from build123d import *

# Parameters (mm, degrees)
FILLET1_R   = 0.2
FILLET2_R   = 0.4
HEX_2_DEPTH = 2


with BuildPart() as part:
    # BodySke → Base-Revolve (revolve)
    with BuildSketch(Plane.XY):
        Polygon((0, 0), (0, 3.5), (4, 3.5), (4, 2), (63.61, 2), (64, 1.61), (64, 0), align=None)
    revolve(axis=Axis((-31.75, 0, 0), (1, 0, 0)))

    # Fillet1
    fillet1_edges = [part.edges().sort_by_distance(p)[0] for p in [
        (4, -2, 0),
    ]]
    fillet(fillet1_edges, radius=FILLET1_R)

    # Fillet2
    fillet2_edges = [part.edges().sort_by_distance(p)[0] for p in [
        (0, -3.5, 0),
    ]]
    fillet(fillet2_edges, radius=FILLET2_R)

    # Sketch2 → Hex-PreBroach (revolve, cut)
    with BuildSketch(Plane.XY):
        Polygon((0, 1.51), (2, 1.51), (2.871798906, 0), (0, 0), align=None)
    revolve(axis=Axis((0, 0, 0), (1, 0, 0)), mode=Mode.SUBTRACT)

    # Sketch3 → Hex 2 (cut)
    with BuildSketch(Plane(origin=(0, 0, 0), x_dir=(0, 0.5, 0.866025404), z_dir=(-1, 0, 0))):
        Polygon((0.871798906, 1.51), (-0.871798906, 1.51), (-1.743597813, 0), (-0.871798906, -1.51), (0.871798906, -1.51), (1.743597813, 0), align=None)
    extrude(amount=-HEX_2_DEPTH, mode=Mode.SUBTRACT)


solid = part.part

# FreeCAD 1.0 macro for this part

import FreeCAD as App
import Part
import Sketcher

V = App.Vector
Q = App.Units.Quantity


def edges_at(feature, points):
    """Names of the edges that pass closest to the given points."""
    edges = feature.Shape.Edges
    near = lambda p: min(range(len(edges)), key=lambda i: edges[i].distToShape(Part.Vertex(*p))[0])
    return sorted({f"Edge{near(p) + 1}" for p in points})


def add_polygon(sketch, points):
    """Adds a closed chain of lines whose ends are joined by coincident constraints."""
    first, n = sketch.GeometryCount, len(points)
    for a, b in zip(points, points[1:] + points[:1]):
        sketch.addGeometry(Part.LineSegment(App.Vector(*a, 0), App.Vector(*b, 0)), False)
    for i in range(n):
        sketch.addConstraint(Sketcher.Constraint("Coincident", first + i, 2, first + (i + 1) % n, 1))

doc = App.newDocument("Part")
body = doc.addObject("PartDesign::Body", "Body")

sketch1 = body.newObject("Sketcher::SketchObject", "Sketch")
sketch1.AttachmentSupport = (doc.getObject("XY_Plane"), [""])
sketch1.MapMode = "FlatFace"
add_polygon(sketch1, [(0, 3.5), (0, 0), (64, 0), (64, 1.61), (63.61, 2), (4, 2), (4, 3.5)])
sketch1.addConstraint(Sketcher.Constraint("Vertical", 0))
sketch1.addConstraint(Sketcher.Constraint("Horizontal", 1))
sketch1.addConstraint(Sketcher.Constraint("Vertical", 2))
sketch1.addConstraint(Sketcher.Constraint("Horizontal", 4))
sketch1.addConstraint(Sketcher.Constraint("Vertical", 5))
sketch1.addConstraint(Sketcher.Constraint("Horizontal", 6))
sketch1.addConstraint(Sketcher.Constraint("Coincident", 0, 2, -1, 1))
sketch1.addConstraint(Sketcher.Constraint("DistanceX", 1, 1, 1, 2, Q("64 mm")))
sketch1.addConstraint(Sketcher.Constraint("DistanceX", 6, 2, 6, 1, Q("4 mm")))
sketch1.addConstraint(Sketcher.Constraint("Angle", 3, Q("135 deg")))
sketch1.addConstraint(Sketcher.Constraint("DistanceY", 0, 2, 0, 1, Q("3.5 mm")))
sketch1.addConstraint(Sketcher.Constraint("DistanceY", 5, 1, 5, 2, Q("1.5 mm")))
sketch1.addConstraint(Sketcher.Constraint("DistanceX", 4, 2, 4, 1, Q("59.61 mm")))
revolution = body.newObject("PartDesign::Revolution", "Revolution")
revolution.Profile = sketch1
revolution.ReferenceAxis = (sketch1, ["H_Axis"])
revolution.Angle = 360
doc.recompute()

fillet = body.newObject("PartDesign::Fillet", "Fillet")
fillet.Base = (revolution, edges_at(revolution, [(4, -2, 0)]))
fillet.Radius = 0.2
doc.recompute()

fillet2 = body.newObject("PartDesign::Fillet", "Fillet001")
fillet2.Base = (fillet, edges_at(fillet, [(0, -3.5, 0)]))
fillet2.Radius = 0.4

sketch2 = body.newObject("Sketcher::SketchObject", "Sketch001")
sketch2.AttachmentSupport = (doc.getObject("XY_Plane"), [""])
sketch2.MapMode = "FlatFace"
add_polygon(sketch2, [(2, 1.51), (0, 1.51), (0, 0), (2.871799, 0)])
sketch2.addConstraint(Sketcher.Constraint("Horizontal", 0))
sketch2.addConstraint(Sketcher.Constraint("Vertical", 1))
sketch2.addConstraint(Sketcher.Constraint("Horizontal", 2))
sketch2.addConstraint(Sketcher.Constraint("Coincident", 1, 2, -1, 1))
sketch2.addConstraint(Sketcher.Constraint("DistanceX", 0, 2, 0, 1, Q("2 mm")))
sketch2.addConstraint(Sketcher.Constraint("Angle", 3, Q("120 deg")))
sketch2.addConstraint(Sketcher.Constraint("DistanceY", 1, 2, 1, 1, Q("1.51 mm")))
groove = body.newObject("PartDesign::Groove", "Groove")
groove.Profile = sketch2
groove.ReferenceAxis = (sketch2, ["H_Axis"])
groove.Angle = 360

sketch3 = body.newObject("Sketcher::SketchObject", "Sketch002")
sketch3.AttachmentSupport = (doc.getObject("YZ_Plane"), [""])
sketch3.MapMode = "FlatFace"
add_polygon(sketch3, [(1.743598, 0), (0.871799, -1.51), (-0.871799, -1.51), (-1.743598, 0), (-0.871799, 1.51), (0.871799, 1.51)])
sketch3.addConstraint(Sketcher.Constraint("Horizontal", 1))
sketch3.addConstraint(Sketcher.Constraint("Horizontal", 4))
sketch3.addConstraint(Sketcher.Constraint("Symmetric", 0, 2, 3, 2, -1, 1))
sketch3.addConstraint(Sketcher.Constraint("Symmetric", 2, 2, 5, 2, -1, 1))
sketch3.addConstraint(Sketcher.Constraint("PointOnObject", 2, 2, -1))
sketch3.addConstraint(Sketcher.Constraint("Parallel", 2, 5))
sketch3.addConstraint(Sketcher.Constraint("Vertical", 1, 2, 3, 2))
sketch3.addConstraint(Sketcher.Constraint("Angle", 0, Q("-120 deg")))
sketch3.addConstraint(Sketcher.Constraint("DistanceY", 0, 2, -1, 1, Q("1.51 mm")))
sketch3.addConstraint(Sketcher.Constraint("DistanceX", -1, 1, 0, 2, Q("0.871799 mm")))
pocket1 = body.newObject("PartDesign::Pocket", "Pocket")
pocket1.Profile = sketch3
pocket1.Length = 2
pocket1.Reversed = True

doc.recompute()
